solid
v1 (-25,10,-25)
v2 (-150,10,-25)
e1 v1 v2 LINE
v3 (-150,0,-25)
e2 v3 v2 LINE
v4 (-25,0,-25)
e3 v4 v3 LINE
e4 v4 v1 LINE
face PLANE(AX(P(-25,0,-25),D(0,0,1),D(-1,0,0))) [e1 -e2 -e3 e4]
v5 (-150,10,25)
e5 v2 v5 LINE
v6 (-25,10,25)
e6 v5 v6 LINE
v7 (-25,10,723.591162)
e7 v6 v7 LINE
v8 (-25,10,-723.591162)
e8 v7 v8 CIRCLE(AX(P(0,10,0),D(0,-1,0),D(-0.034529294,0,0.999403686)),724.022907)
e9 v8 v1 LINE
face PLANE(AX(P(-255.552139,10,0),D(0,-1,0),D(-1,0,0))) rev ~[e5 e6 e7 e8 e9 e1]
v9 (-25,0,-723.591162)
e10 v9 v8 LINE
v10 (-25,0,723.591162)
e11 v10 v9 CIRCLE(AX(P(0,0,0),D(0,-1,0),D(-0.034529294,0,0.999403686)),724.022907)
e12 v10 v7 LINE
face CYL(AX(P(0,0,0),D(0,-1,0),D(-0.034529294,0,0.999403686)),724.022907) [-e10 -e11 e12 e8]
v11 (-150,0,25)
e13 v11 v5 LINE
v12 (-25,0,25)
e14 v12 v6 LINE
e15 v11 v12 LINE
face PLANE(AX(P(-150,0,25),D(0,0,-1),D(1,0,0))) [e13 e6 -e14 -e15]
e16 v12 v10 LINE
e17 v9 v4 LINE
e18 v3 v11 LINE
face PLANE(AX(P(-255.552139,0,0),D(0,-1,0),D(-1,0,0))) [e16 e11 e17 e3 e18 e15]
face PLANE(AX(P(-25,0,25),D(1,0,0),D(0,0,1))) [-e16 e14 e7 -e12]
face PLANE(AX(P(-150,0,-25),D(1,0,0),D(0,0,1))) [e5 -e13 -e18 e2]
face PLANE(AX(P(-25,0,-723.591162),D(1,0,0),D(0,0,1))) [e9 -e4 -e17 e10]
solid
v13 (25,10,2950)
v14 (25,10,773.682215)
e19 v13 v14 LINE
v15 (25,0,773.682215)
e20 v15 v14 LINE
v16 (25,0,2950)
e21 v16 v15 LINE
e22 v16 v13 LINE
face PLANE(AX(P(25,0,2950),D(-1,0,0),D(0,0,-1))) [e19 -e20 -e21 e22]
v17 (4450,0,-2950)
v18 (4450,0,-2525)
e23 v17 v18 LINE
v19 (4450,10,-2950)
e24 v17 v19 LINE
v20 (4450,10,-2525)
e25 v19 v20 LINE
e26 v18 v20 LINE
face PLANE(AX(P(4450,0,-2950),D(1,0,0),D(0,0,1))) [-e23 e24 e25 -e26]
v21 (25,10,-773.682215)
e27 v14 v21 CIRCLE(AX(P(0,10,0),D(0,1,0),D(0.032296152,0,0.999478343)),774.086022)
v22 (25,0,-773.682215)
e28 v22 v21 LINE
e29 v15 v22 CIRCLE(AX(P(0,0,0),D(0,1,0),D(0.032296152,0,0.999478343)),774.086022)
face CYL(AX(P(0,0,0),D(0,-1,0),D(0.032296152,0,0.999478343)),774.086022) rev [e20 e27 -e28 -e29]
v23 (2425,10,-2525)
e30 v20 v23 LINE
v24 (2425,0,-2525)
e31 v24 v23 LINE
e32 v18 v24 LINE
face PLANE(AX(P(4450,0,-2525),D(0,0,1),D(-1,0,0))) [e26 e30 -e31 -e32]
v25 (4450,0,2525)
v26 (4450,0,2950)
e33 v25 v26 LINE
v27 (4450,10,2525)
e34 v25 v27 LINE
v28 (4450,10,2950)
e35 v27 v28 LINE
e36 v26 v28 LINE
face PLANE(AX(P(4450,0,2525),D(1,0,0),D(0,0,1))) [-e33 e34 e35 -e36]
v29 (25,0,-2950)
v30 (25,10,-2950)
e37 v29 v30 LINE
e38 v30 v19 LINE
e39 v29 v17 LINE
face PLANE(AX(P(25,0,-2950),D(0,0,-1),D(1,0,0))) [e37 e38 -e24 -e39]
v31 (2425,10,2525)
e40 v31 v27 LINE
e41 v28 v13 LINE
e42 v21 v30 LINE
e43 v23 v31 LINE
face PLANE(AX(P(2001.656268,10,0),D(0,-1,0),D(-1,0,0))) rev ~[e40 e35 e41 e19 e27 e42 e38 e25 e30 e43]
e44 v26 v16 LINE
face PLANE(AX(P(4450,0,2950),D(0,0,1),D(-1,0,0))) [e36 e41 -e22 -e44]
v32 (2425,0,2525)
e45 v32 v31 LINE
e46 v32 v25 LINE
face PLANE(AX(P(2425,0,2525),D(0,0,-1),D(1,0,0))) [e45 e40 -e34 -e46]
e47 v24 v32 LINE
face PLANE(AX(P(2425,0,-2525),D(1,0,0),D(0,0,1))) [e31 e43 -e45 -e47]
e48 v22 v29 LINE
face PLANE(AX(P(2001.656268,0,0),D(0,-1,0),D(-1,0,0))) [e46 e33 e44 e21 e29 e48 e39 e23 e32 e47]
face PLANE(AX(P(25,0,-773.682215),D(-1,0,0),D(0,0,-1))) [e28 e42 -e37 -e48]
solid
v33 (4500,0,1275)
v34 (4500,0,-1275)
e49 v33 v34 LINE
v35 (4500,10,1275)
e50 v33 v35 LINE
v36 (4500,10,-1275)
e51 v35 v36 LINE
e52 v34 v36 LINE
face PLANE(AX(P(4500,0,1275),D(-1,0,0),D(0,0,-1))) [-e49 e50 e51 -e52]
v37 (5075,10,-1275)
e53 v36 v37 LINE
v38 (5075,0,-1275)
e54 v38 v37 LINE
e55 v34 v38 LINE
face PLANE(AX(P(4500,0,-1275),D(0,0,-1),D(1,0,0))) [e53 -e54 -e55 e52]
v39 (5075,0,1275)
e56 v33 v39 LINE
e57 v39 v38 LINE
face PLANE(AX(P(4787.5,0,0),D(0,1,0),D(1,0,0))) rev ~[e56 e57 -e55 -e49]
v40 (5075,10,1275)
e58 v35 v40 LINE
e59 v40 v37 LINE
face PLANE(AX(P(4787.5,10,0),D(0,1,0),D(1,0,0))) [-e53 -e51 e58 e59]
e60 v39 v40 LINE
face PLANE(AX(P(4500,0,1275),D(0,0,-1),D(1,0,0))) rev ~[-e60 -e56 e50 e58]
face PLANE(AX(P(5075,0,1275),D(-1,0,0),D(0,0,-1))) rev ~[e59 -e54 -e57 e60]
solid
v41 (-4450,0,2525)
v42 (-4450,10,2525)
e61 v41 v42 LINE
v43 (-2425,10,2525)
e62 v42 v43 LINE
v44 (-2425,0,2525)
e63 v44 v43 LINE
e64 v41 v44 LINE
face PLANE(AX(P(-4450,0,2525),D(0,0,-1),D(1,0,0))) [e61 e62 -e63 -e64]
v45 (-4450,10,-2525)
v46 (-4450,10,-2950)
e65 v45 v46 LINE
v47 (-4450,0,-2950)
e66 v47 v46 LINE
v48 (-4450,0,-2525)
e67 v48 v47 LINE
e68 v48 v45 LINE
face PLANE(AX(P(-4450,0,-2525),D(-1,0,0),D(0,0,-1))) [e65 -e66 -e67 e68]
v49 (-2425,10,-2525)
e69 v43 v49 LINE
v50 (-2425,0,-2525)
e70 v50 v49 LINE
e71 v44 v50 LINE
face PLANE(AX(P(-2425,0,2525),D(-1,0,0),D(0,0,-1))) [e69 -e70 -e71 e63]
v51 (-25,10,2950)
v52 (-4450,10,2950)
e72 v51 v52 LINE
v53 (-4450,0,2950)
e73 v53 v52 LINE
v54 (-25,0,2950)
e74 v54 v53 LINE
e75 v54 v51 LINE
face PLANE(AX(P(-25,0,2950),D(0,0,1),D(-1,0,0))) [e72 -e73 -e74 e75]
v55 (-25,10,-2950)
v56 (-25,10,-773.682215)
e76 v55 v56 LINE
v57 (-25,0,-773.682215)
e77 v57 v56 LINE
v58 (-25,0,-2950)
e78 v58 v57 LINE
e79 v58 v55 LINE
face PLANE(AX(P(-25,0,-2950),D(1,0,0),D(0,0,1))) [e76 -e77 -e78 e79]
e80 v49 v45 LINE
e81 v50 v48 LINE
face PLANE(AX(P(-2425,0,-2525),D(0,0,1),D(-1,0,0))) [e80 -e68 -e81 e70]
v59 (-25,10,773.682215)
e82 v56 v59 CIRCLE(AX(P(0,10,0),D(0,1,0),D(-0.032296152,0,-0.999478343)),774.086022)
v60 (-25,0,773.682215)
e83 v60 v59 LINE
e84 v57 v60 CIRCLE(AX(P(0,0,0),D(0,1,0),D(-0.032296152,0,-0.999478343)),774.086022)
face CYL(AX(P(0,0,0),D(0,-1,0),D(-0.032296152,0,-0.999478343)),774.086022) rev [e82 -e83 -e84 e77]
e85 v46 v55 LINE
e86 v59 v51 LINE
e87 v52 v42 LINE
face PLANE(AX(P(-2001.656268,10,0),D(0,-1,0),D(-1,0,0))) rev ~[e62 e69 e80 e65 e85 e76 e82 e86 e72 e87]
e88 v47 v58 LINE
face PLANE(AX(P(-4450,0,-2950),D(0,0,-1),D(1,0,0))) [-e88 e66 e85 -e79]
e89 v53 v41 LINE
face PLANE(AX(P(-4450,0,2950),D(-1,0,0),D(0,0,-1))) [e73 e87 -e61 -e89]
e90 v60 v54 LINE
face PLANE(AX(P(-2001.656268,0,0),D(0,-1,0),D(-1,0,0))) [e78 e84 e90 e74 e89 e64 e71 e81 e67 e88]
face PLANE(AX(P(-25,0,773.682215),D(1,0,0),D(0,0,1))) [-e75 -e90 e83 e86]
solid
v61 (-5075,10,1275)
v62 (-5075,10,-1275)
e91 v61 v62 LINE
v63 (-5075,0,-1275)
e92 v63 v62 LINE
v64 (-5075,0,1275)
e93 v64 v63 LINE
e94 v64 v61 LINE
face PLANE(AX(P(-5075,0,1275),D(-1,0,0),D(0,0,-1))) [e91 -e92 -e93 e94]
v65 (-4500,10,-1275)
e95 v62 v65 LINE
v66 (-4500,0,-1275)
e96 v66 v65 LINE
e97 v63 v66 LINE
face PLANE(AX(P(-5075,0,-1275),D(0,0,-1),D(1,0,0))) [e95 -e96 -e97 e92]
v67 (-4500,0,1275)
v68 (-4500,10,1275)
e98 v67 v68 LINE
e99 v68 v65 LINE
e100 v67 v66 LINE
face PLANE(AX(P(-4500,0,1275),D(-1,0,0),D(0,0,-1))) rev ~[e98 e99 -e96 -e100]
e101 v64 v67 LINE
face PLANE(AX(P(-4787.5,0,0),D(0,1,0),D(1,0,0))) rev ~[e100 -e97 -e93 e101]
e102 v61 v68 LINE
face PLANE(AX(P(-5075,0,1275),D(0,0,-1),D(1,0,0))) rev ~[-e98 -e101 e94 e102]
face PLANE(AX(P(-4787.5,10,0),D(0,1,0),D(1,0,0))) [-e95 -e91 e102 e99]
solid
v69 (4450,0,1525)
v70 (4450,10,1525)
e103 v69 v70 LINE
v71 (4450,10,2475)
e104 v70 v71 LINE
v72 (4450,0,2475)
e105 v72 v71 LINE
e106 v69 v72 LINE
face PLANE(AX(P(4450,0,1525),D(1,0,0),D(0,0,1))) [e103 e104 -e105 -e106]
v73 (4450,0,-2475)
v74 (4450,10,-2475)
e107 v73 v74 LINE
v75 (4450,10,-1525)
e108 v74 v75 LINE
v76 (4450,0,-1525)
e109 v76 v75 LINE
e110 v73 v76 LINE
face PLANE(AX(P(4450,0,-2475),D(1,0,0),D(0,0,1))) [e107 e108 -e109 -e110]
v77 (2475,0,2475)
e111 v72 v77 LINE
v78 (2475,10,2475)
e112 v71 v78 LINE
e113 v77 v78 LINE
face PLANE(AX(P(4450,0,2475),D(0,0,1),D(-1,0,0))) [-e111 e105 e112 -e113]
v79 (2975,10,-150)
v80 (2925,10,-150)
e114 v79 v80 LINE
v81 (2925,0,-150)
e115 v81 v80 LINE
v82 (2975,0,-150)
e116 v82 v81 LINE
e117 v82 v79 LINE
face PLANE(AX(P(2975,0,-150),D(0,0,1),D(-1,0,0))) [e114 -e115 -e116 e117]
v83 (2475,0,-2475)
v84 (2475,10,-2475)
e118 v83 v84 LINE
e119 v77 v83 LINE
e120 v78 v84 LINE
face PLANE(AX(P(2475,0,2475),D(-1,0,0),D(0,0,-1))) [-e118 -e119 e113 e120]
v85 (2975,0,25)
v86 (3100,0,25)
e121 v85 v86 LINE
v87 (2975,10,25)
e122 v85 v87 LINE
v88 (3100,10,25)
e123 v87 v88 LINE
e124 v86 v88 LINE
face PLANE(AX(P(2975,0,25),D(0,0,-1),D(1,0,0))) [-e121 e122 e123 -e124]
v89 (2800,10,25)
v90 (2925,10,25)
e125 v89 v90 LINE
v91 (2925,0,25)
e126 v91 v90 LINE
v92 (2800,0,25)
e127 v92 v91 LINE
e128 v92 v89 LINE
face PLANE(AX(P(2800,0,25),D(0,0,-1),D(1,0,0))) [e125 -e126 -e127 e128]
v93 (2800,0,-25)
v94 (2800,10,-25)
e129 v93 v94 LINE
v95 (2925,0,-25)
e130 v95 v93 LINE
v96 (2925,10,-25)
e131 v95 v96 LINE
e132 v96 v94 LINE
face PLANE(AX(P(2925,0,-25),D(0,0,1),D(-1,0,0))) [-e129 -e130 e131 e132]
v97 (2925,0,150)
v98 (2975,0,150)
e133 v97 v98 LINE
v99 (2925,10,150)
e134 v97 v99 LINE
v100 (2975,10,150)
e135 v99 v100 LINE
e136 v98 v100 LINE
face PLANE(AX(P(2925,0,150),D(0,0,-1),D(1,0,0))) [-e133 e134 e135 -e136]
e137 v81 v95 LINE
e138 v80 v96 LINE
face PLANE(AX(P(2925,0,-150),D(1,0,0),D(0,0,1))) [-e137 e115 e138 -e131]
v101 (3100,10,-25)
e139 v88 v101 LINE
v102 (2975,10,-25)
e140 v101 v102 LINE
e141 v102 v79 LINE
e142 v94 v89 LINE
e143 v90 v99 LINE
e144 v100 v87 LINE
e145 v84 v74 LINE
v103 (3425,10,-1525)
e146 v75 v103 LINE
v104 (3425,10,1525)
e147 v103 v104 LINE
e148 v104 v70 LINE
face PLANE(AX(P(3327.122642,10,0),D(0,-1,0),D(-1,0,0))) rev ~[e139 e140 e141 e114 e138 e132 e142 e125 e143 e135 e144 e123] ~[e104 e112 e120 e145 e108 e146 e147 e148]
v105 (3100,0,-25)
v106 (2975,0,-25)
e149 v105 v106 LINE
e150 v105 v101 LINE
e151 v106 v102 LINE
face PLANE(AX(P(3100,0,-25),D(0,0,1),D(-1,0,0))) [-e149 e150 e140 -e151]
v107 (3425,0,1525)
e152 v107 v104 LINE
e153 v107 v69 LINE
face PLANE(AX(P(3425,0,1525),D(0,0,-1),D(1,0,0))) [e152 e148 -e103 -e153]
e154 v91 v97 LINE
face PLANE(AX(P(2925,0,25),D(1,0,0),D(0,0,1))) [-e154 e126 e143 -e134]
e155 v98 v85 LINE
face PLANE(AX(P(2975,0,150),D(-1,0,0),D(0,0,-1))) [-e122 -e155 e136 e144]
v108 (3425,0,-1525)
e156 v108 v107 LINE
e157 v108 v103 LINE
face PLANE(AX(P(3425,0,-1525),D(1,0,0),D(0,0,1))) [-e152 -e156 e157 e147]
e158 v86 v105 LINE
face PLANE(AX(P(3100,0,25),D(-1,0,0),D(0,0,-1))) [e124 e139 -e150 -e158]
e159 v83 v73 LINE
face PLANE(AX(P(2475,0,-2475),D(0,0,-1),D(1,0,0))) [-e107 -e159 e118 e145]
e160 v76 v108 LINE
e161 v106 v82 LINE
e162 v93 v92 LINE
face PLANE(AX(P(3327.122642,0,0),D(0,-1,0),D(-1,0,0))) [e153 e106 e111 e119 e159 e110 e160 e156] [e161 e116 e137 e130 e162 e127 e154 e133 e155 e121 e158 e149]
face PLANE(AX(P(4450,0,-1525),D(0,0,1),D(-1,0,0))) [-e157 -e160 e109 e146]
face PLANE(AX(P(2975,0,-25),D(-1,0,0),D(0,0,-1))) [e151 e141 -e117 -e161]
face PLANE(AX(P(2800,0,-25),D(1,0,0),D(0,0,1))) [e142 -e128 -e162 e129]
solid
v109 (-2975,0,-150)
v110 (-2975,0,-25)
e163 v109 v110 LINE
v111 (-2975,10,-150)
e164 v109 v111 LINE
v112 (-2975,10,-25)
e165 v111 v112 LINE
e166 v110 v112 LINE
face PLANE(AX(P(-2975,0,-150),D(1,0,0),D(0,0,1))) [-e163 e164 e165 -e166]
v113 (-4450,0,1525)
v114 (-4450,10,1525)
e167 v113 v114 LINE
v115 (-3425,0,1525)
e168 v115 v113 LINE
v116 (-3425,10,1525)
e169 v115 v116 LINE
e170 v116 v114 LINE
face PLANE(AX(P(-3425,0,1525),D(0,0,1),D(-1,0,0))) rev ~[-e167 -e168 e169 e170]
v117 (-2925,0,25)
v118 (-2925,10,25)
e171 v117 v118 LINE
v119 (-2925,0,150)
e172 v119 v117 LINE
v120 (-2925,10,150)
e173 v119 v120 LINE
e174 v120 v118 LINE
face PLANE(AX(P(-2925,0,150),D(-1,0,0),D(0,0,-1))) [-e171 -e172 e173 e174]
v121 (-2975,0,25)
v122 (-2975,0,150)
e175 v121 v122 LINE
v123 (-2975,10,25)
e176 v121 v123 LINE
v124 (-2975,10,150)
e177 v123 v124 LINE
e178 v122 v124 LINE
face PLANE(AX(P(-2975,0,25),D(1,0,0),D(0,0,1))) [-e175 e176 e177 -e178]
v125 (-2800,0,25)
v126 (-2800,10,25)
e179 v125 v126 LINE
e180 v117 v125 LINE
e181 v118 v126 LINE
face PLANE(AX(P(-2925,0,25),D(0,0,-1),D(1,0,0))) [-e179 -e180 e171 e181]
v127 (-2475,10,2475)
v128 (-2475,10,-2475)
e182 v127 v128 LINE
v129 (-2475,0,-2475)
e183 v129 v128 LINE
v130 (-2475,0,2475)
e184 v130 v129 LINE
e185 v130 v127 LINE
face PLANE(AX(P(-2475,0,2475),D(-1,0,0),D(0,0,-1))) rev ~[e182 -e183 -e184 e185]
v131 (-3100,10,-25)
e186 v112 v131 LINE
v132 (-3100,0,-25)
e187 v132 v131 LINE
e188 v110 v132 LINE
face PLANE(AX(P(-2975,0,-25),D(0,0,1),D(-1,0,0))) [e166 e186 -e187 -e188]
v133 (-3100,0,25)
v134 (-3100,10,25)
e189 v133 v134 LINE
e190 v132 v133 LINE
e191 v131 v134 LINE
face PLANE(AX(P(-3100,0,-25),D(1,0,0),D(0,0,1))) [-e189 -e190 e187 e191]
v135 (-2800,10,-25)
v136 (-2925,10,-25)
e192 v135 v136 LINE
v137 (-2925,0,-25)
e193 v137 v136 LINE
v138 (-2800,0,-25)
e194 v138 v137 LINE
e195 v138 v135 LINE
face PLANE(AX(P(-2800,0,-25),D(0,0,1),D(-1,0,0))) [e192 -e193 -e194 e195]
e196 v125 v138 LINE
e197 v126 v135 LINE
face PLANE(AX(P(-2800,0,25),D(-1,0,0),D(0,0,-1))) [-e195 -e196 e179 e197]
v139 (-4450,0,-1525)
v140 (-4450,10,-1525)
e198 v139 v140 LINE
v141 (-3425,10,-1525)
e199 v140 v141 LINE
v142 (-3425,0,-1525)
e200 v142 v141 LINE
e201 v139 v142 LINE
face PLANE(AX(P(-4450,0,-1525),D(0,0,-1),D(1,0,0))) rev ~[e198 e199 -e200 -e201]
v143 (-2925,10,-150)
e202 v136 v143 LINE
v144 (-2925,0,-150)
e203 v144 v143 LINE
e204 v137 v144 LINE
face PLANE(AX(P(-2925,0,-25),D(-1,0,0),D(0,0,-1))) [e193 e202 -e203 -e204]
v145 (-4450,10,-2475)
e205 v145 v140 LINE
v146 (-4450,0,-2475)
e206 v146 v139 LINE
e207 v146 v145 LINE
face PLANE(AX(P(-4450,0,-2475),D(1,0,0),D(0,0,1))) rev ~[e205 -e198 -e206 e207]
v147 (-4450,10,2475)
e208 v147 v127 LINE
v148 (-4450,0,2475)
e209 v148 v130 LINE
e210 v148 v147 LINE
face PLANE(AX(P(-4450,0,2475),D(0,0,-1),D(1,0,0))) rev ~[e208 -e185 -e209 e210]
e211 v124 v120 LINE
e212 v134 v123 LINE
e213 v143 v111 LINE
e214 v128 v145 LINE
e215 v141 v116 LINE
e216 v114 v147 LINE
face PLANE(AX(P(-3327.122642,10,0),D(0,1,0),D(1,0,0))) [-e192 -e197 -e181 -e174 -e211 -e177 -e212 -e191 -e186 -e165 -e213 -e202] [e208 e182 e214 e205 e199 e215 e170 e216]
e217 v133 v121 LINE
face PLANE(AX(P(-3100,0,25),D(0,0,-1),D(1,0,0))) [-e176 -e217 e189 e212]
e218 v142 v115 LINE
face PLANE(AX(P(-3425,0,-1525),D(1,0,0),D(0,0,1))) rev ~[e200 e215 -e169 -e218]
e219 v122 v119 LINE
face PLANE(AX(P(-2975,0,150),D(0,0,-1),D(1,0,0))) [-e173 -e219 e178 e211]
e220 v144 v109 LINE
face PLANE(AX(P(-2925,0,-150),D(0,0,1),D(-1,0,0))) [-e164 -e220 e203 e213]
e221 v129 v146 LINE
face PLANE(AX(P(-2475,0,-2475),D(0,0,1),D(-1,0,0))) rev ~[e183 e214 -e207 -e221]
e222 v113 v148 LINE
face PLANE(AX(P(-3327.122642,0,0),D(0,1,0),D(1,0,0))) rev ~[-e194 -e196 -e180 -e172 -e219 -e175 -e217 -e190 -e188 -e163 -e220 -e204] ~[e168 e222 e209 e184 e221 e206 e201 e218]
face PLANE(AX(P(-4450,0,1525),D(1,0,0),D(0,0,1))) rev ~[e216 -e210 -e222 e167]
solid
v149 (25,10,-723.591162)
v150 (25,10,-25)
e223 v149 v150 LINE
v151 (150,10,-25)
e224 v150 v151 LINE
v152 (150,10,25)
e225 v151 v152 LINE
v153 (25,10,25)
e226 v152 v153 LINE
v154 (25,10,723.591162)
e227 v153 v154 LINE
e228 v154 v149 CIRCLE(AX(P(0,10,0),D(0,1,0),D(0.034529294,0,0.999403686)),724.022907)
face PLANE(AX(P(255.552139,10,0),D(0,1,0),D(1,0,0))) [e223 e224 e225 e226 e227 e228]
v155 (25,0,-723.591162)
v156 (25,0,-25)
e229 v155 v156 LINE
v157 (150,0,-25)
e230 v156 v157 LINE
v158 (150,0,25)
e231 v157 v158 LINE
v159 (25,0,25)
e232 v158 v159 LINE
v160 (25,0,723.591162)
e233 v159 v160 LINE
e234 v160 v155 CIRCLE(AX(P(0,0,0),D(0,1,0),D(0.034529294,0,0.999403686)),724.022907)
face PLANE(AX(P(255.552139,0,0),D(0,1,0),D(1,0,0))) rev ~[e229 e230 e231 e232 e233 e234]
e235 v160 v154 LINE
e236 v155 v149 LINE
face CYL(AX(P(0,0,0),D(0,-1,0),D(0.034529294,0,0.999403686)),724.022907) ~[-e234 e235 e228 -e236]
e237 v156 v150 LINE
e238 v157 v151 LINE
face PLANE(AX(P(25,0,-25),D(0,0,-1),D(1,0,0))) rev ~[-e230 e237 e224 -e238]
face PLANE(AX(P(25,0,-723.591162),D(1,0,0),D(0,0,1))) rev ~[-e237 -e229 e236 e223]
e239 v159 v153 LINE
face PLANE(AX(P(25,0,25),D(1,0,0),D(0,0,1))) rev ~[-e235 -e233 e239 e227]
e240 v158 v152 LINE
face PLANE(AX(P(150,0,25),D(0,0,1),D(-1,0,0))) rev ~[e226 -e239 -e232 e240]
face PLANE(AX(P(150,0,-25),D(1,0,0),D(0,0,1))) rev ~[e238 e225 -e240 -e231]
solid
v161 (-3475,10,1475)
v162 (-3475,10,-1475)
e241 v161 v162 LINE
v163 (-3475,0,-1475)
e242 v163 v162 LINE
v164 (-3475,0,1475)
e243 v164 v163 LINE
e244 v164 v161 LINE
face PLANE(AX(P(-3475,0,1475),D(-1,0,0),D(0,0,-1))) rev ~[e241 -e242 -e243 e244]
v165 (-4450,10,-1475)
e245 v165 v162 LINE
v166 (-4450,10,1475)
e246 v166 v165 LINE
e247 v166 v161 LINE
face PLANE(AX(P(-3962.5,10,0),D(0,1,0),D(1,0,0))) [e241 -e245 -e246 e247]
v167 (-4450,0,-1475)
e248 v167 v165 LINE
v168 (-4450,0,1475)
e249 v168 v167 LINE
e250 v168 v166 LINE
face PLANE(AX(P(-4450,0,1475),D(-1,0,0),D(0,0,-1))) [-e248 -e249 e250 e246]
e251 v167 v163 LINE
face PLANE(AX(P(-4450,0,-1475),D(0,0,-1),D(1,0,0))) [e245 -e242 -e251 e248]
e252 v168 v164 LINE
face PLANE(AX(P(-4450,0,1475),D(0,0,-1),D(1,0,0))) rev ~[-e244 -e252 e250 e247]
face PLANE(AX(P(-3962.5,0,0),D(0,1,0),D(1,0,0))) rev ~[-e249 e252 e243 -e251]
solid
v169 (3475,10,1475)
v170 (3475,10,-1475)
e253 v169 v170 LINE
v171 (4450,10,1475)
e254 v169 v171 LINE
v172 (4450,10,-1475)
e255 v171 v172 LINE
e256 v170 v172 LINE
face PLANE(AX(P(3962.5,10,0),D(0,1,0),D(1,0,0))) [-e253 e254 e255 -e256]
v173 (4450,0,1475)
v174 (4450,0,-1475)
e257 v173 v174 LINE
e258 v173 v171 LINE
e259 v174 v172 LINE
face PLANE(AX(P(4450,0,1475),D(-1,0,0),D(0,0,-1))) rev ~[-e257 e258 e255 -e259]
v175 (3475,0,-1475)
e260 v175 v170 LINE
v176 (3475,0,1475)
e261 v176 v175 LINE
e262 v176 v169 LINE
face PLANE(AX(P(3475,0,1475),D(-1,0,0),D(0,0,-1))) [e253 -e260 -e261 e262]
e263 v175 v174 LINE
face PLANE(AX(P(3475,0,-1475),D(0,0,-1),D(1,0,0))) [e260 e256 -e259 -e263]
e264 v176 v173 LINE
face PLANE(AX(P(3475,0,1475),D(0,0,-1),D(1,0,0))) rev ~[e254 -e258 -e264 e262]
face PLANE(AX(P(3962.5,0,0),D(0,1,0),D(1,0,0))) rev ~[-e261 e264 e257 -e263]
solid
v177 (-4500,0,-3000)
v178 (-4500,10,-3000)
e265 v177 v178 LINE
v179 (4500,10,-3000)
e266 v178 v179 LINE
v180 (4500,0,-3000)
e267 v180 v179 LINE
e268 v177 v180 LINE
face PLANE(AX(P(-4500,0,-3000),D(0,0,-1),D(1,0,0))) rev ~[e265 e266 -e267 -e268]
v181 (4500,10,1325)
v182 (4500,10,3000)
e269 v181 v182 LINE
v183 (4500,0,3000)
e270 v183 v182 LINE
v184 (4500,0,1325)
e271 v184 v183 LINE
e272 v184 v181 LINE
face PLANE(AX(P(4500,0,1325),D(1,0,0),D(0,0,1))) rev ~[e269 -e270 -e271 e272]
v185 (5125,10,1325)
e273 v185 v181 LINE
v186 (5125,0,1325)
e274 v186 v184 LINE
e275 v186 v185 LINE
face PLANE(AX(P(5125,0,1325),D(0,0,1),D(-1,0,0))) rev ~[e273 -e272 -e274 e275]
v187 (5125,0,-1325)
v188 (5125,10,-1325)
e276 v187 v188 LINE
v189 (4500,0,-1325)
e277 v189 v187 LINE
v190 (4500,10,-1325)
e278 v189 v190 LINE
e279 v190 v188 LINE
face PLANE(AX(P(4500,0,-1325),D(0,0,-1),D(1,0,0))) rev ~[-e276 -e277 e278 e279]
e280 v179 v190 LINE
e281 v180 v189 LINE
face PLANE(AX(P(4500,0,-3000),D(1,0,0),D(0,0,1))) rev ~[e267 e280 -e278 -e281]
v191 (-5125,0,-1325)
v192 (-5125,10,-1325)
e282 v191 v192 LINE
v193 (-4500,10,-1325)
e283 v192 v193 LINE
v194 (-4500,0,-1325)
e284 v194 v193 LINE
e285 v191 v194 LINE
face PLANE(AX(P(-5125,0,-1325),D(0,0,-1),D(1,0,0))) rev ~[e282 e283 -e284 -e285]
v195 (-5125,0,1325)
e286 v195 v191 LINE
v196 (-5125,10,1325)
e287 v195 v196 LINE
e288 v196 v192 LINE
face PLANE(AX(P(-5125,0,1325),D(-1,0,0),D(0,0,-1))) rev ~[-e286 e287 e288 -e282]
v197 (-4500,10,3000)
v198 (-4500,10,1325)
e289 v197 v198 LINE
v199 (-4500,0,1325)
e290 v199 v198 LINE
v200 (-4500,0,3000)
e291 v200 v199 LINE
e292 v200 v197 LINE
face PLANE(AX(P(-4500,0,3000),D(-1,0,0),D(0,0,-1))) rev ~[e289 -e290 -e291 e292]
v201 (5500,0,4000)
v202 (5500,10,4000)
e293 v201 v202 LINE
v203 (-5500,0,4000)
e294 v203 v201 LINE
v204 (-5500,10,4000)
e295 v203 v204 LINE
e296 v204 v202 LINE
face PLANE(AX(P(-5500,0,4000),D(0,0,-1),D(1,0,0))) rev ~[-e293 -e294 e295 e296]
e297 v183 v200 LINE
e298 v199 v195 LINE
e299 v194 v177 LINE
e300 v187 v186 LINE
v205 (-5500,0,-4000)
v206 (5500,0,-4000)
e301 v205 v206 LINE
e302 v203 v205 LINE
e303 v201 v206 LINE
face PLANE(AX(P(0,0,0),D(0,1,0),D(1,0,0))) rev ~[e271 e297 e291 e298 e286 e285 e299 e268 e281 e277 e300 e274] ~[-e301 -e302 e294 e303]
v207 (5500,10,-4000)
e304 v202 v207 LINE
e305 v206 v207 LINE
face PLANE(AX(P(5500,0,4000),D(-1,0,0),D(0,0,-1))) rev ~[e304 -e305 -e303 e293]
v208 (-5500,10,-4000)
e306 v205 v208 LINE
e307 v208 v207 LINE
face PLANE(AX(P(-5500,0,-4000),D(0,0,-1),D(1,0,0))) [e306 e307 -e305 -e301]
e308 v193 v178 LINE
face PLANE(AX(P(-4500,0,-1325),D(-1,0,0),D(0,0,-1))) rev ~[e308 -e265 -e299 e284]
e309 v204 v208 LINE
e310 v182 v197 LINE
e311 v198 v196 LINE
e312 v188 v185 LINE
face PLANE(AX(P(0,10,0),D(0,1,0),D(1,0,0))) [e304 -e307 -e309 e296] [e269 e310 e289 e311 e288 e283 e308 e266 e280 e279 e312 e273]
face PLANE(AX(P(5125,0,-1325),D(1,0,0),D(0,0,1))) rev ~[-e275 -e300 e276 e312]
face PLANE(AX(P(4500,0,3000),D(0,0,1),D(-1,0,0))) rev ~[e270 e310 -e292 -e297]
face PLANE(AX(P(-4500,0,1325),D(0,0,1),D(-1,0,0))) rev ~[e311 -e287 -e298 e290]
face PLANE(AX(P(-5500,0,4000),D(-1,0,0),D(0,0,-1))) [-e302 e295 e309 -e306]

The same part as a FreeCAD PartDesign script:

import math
import FreeCAD as App
import Part
import Sketcher
from FreeCAD import Vector

doc = App.newDocument("Part")
body = doc.addObject("PartDesign::Body", "Body")

# Sketch on XZ plane
sketch1 = doc.addObject("Sketcher::SketchObject", "Sketch")
body.addObject(sketch1)
sketch1.AttachmentSupport = (doc.XZ_Plane, [""])
sketch1.MapMode = "FlatFace"
sketch1.addGeometry([
    Part.LineSegment(Vector(25, 25, 0), Vector(25, 724, 0)),  # 0
    Part.ArcOfCircle(Part.Circle(Vector(0, 0, 0), Vector(0, 0, 1), 724), math.radians(-88), math.radians(88)),  # 1
    Part.LineSegment(Vector(25, -724, 0), Vector(25, -25, 0)),  # 2
    Part.LineSegment(Vector(25, -25, 0), Vector(150, -25, 0)),  # 3
    Part.LineSegment(Vector(150, -25, 0), Vector(150, 25, 0)),  # 4
    Part.LineSegment(Vector(150, 25, 0), Vector(25, 25, 0)),  # 5
], False)
sketch1.addConstraint([
    Sketcher.Constraint("Coincident", 0, 2, 1, 2),
    Sketcher.Constraint("Coincident", 1, 1, 2, 1),
    Sketcher.Constraint("Coincident", 2, 2, 3, 1),
    Sketcher.Constraint("Coincident", 3, 2, 4, 1),
    Sketcher.Constraint("Coincident", 4, 2, 5, 1),
    Sketcher.Constraint("Coincident", 5, 2, 0, 1),
    Sketcher.Constraint("Vertical", 0),
    Sketcher.Constraint("Vertical", 2),
    Sketcher.Constraint("Horizontal", 3),
    Sketcher.Constraint("Vertical", 4),
    Sketcher.Constraint("Horizontal", 5),
    Sketcher.Constraint("Coincident", 1, 3, -1, 1),
    Sketcher.Constraint("Symmetric", 2, 2, 5, 2, -1),
    Sketcher.Constraint("DistanceX", 3, 1, 3, 2, 125.0),
    Sketcher.Constraint("DistanceY", 4, 1, 4, 2, 50.0),
    Sketcher.Constraint("DistanceX", -1, 1, 0, 2, 25.0),
    Sketcher.Constraint("Radius", 1, 724.022907),
])
pad1 = doc.addObject("PartDesign::Pad", "Pad")
body.addObject(pad1)
pad1.Profile = sketch1
pad1.Length = 10
pad1.Reversed = True
body2 = doc.addObject("PartDesign::Body", "Body001")

# Sketch on XZ plane
sketch2 = doc.addObject("Sketcher::SketchObject", "Sketch001")
body2.addObject(sketch2)
sketch2.AttachmentSupport = (doc.getObject("XZ_Plane001"), [""])
sketch2.MapMode = "FlatFace"
sketch2.addGeometry([
    Part.LineSegment(Vector(-25, -25, 0), Vector(-25, -724, 0)),  # 0
    Part.ArcOfCircle(Part.Circle(Vector(0, 0, 0), Vector(0, 0, 1), 724), math.radians(92), math.radians(268)),  # 1
    Part.LineSegment(Vector(-25, 724, 0), Vector(-25, 25, 0)),  # 2
    Part.LineSegment(Vector(-25, 25, 0), Vector(-150, 25, 0)),  # 3
    Part.LineSegment(Vector(-150, 25, 0), Vector(-150, -25, 0)),  # 4
    Part.LineSegment(Vector(-150, -25, 0), Vector(-25, -25, 0)),  # 5
], False)
sketch2.addConstraint([
    Sketcher.Constraint("Coincident", 0, 2, 1, 2),
    Sketcher.Constraint("Coincident", 1, 1, 2, 1),
    Sketcher.Constraint("Coincident", 2, 2, 3, 1),
    Sketcher.Constraint("Coincident", 3, 2, 4, 1),
    Sketcher.Constraint("Coincident", 4, 2, 5, 1),
    Sketcher.Constraint("Coincident", 5, 2, 0, 1),
    Sketcher.Constraint("Vertical", 0),
    Sketcher.Constraint("Vertical", 2),
    Sketcher.Constraint("Horizontal", 3),
    Sketcher.Constraint("Vertical", 4),
    Sketcher.Constraint("Horizontal", 5),
    Sketcher.Constraint("Coincident", 1, 3, -1, 1),
    Sketcher.Constraint("Symmetric", 2, 2, 5, 2, -1),
    Sketcher.Constraint("DistanceX", 3, 2, 3, 1, 125.0),
    Sketcher.Constraint("DistanceY", 4, 2, 4, 1, 50.0),
    Sketcher.Constraint("DistanceX", 0, 2, -1, 1, 25.0),
    Sketcher.Constraint("Radius", 1, 724.022907),
])
pad2 = doc.addObject("PartDesign::Pad", "Pad001")
body2.addObject(pad2)
pad2.Profile = sketch2
pad2.Length = 10
pad2.Reversed = True
body3 = doc.addObject("PartDesign::Body", "Body002")

# Sketch on XZ plane
sketch3 = doc.addObject("Sketcher::SketchObject", "Sketch002")
body3.addObject(sketch3)
sketch3.AttachmentSupport = (doc.getObject("XZ_Plane002"), [""])
sketch3.MapMode = "FlatFace"
sketch3.addGeometry([
    Part.ArcOfCircle(Part.Circle(Vector(0, 0, 0), Vector(0, 0, 1), 774), math.radians(92), math.radians(268)),  # 0
    Part.LineSegment(Vector(-25, -774, 0), Vector(-25, -2950, 0)),  # 1
    Part.LineSegment(Vector(-25, -2950, 0), Vector(-4450, -2950, 0)),  # 2
    Part.LineSegment(Vector(-4450, -2950, 0), Vector(-4450, -2525, 0)),  # 3
    Part.LineSegment(Vector(-4450, -2525, 0), Vector(-2425, -2525, 0)),  # 4
    Part.LineSegment(Vector(-2425, -2525, 0), Vector(-2425, 2525, 0)),  # 5
    Part.LineSegment(Vector(-2425, 2525, 0), Vector(-4450, 2525, 0)),  # 6
    Part.LineSegment(Vector(-4450, 2525, 0), Vector(-4450, 2950, 0)),  # 7
    Part.LineSegment(Vector(-4450, 2950, 0), Vector(-25, 2950, 0)),  # 8
    Part.LineSegment(Vector(-25, 2950, 0), Vector(-25, 774, 0)),  # 9
], False)
sketch3.addConstraint([
    Sketcher.Constraint("Coincident", 0, 2, 1, 1),
    Sketcher.Constraint("Coincident", 1, 2, 2, 1),
    Sketcher.Constraint("Coincident", 2, 2, 3, 1),
    Sketcher.Constraint("Coincident", 3, 2, 4, 1),
    Sketcher.Constraint("Coincident", 4, 2, 5, 1),
    Sketcher.Constraint("Coincident", 5, 2, 6, 1),
    Sketcher.Constraint("Coincident", 6, 2, 7, 1),
    Sketcher.Constraint("Coincident", 7, 2, 8, 1),
    Sketcher.Constraint("Coincident", 8, 2, 9, 1),
    Sketcher.Constraint("Coincident", 9, 2, 0, 1),
    Sketcher.Constraint("Vertical", 1),
    Sketcher.Constraint("Horizontal", 2),
    Sketcher.Constraint("Vertical", 3),
    Sketcher.Constraint("Horizontal", 4),
    Sketcher.Constraint("Vertical", 5),
    Sketcher.Constraint("Horizontal", 6),
    Sketcher.Constraint("Vertical", 7),
    Sketcher.Constraint("Horizontal", 8),
    Sketcher.Constraint("Vertical", 9),
    Sketcher.Constraint("Coincident", 0, 3, -1, 1),
    Sketcher.Constraint("Symmetric", 3, 2, 6, 2, -1),
    Sketcher.Constraint("Symmetric", 1, 2, 8, 2, -1),
    Sketcher.Constraint("DistanceX", 2, 2, 2, 1, 4425.0),
    Sketcher.Constraint("DistanceX", 4, 1, 4, 2, 2025.0),
    Sketcher.Constraint("DistanceY", 3, 1, 3, 2, 425.0),
    Sketcher.Constraint("DistanceY", 5, 1, 5, 2, 5050.0),
    Sketcher.Constraint("DistanceX", 1, 2, -1, 1, 25.0),
    Sketcher.Constraint("Radius", 0, 774.086022),
])
pad3 = doc.addObject("PartDesign::Pad", "Pad002")
body3.addObject(pad3)
pad3.Profile = sketch3
pad3.Length = 10
pad3.Reversed = True
body4 = doc.addObject("PartDesign::Body", "Body003")

# Sketch on XZ plane
sketch4 = doc.addObject("Sketcher::SketchObject", "Sketch003")
body4.addObject(sketch4)
sketch4.AttachmentSupport = (doc.getObject("XZ_Plane003"), [""])
sketch4.MapMode = "FlatFace"
sketch4.addGeometry([
    Part.ArcOfCircle(Part.Circle(Vector(0, 0, 0), Vector(0, 0, 1), 774), math.radians(-88), math.radians(88)),  # 0
    Part.LineSegment(Vector(25, 774, 0), Vector(25, 2950, 0)),  # 1
    Part.LineSegment(Vector(25, 2950, 0), Vector(4450, 2950, 0)),  # 2
    Part.LineSegment(Vector(4450, 2950, 0), Vector(4450, 2525, 0)),  # 3
    Part.LineSegment(Vector(4450, 2525, 0), Vector(2425, 2525, 0)),  # 4
    Part.LineSegment(Vector(2425, 2525, 0), Vector(2425, -2525, 0)),  # 5
    Part.LineSegment(Vector(2425, -2525, 0), Vector(4450, -2525, 0)),  # 6
    Part.LineSegment(Vector(4450, -2525, 0), Vector(4450, -2950, 0)),  # 7
    Part.LineSegment(Vector(4450, -2950, 0), Vector(25, -2950, 0)),  # 8
    Part.LineSegment(Vector(25, -2950, 0), Vector(25, -774, 0)),  # 9
], False)
sketch4.addConstraint([
    Sketcher.Constraint("Coincident", 0, 2, 1, 1),
    Sketcher.Constraint("Coincident", 1, 2, 2, 1),
    Sketcher.Constraint("Coincident", 2, 2, 3, 1),
    Sketcher.Constraint("Coincident", 3, 2, 4, 1),
    Sketcher.Constraint("Coincident", 4, 2, 5, 1),
    Sketcher.Constraint("Coincident", 5, 2, 6, 1),
    Sketcher.Constraint("Coincident", 6, 2, 7, 1),
    Sketcher.Constraint("Coincident", 7, 2, 8, 1),
    Sketcher.Constraint("Coincident", 8, 2, 9, 1),
    Sketcher.Constraint("Coincident", 9, 2, 0, 1),
    Sketcher.Constraint("Vertical", 1),
    Sketcher.Constraint("Horizontal", 2),
    Sketcher.Constraint("Vertical", 3),
    Sketcher.Constraint("Horizontal", 4),
    Sketcher.Constraint("Vertical", 5),
    Sketcher.Constraint("Horizontal", 6),
    Sketcher.Constraint("Vertical", 7),
    Sketcher.Constraint("Horizontal", 8),
    Sketcher.Constraint("Vertical", 9),
    Sketcher.Constraint("Coincident", 0, 3, -1, 1),
    Sketcher.Constraint("Symmetric", 3, 2, 6, 2, -1),
    Sketcher.Constraint("Symmetric", 1, 2, 8, 2, -1),
    Sketcher.Constraint("DistanceX", 2, 1, 2, 2, 4425.0),
    Sketcher.Constraint("DistanceX", 4, 2, 4, 1, 2025.0),
    Sketcher.Constraint("DistanceY", 3, 2, 3, 1, 425.0),
    Sketcher.Constraint("DistanceY", 5, 2, 5, 1, 5050.0),
    Sketcher.Constraint("DistanceX", -1, 1, 1, 2, 25.0),
    Sketcher.Constraint("Radius", 0, 774.086022),
])
pad4 = doc.addObject("PartDesign::Pad", "Pad003")
body4.addObject(pad4)
pad4.Profile = sketch4
pad4.Length = 10
pad4.Reversed = True
body5 = doc.addObject("PartDesign::Body", "Body004")

# Sketch on XZ plane
sketch5 = doc.addObject("Sketcher::SketchObject", "Sketch004")
body5.addObject(sketch5)
sketch5.AttachmentSupport = (doc.getObject("XZ_Plane004"), [""])
sketch5.MapMode = "FlatFace"
sketch5.addGeometry([
    Part.LineSegment(Vector(4450, 2475, 0), Vector(4450, 1525, 0)),  # 0
    Part.LineSegment(Vector(4450, 1525, 0), Vector(3425, 1525, 0)),  # 1
    Part.LineSegment(Vector(3425, 1525, 0), Vector(3425, -1525, 0)),  # 2
    Part.LineSegment(Vector(3425, -1525, 0), Vector(4450, -1525, 0)),  # 3
    Part.LineSegment(Vector(4450, -1525, 0), Vector(4450, -2475, 0)),  # 4
    Part.LineSegment(Vector(4450, -2475, 0), Vector(2475, -2475, 0)),  # 5
    Part.LineSegment(Vector(2475, -2475, 0), Vector(2475, 2475, 0)),  # 6
    Part.LineSegment(Vector(2475, 2475, 0), Vector(4450, 2475, 0)),  # 7
    Part.LineSegment(Vector(2975, -150, 0), Vector(2975, -25, 0)),  # 8
    Part.LineSegment(Vector(2975, -25, 0), Vector(3100, -25, 0)),  # 9
    Part.LineSegment(Vector(3100, -25, 0), Vector(3100, 25, 0)),  # 10
    Part.LineSegment(Vector(3100, 25, 0), Vector(2975, 25, 0)),  # 11
    Part.LineSegment(Vector(2975, 25, 0), Vector(2975, 150, 0)),  # 12
    Part.LineSegment(Vector(2975, 150, 0), Vector(2925, 150, 0)),  # 13
    Part.LineSegment(Vector(2925, 150, 0), Vector(2925, 25, 0)),  # 14
    Part.LineSegment(Vector(2925, 25, 0), Vector(2800, 25, 0)),  # 15
    Part.LineSegment(Vector(2800, 25, 0), Vector(2800, -25, 0)),  # 16
    Part.LineSegment(Vector(2800, -25, 0), Vector(2925, -25, 0)),  # 17
    Part.LineSegment(Vector(2925, -25, 0), Vector(2925, -150, 0)),  # 18
    Part.LineSegment(Vector(2925, -150, 0), Vector(2975, -150, 0)),  # 19
], False)
sketch5.addConstraint([
    Sketcher.Constraint("Coincident", 0, 2, 1, 1),
    Sketcher.Constraint("Coincident", 1, 2, 2, 1),
    Sketcher.Constraint("Coincident", 2, 2, 3, 1),
    Sketcher.Constraint("Coincident", 3, 2, 4, 1),
    Sketcher.Constraint("Coincident", 4, 2, 5, 1),
    Sketcher.Constraint("Coincident", 5, 2, 6, 1),
    Sketcher.Constraint("Coincident", 6, 2, 7, 1),
    Sketcher.Constraint("Coincident", 7, 2, 0, 1),
    Sketcher.Constraint("Coincident", 8, 2, 9, 1),
    Sketcher.Constraint("Coincident", 9, 2, 10, 1),
    Sketcher.Constraint("Coincident", 10, 2, 11, 1),
    Sketcher.Constraint("Coincident", 11, 2, 12, 1),
    Sketcher.Constraint("Coincident", 12, 2, 13, 1),
    Sketcher.Constraint("Coincident", 13, 2, 14, 1),
    Sketcher.Constraint("Coincident", 14, 2, 15, 1),
    Sketcher.Constraint("Coincident", 15, 2, 16, 1),
    Sketcher.Constraint("Coincident", 16, 2, 17, 1),
    Sketcher.Constraint("Coincident", 17, 2, 18, 1),
    Sketcher.Constraint("Coincident", 18, 2, 19, 1),
    Sketcher.Constraint("Coincident", 19, 2, 8, 1),
    Sketcher.Constraint("Vertical", 0),
    Sketcher.Constraint("Horizontal", 1),
    Sketcher.Constraint("Vertical", 2),
    Sketcher.Constraint("Horizontal", 3),
    Sketcher.Constraint("Vertical", 4),
    Sketcher.Constraint("Horizontal", 5),
    Sketcher.Constraint("Vertical", 6),
    Sketcher.Constraint("Horizontal", 7),
    Sketcher.Constraint("Vertical", 8),
    Sketcher.Constraint("Horizontal", 9),
    Sketcher.Constraint("Vertical", 10),
    Sketcher.Constraint("Horizontal", 11),
    Sketcher.Constraint("Vertical", 12),
    Sketcher.Constraint("Horizontal", 13),
    Sketcher.Constraint("Vertical", 14),
    Sketcher.Constraint("Horizontal", 15),
    Sketcher.Constraint("Vertical", 16),
    Sketcher.Constraint("Horizontal", 17),
    Sketcher.Constraint("Vertical", 18),
    Sketcher.Constraint("Horizontal", 19),
    Sketcher.Constraint("Symmetric", 0, 2, 3, 2, -1),
    Sketcher.Constraint("Symmetric", 8, 2, 11, 2, -1),
    Sketcher.Constraint("Symmetric", 14, 2, 17, 2, -1),
    Sketcher.Constraint("Horizontal", 11, 2, 14, 2),
    Sketcher.Constraint("Equal", 11, 15),
    Sketcher.Constraint("Equal", 0, 4),
    Sketcher.Constraint("Equal", 17, 8),
    Sketcher.Constraint("Equal", 19, 10),
    Sketcher.Constraint("Equal", 8, 12),
    Sketcher.Constraint("DistanceX", 1, 2, 1, 1, 1025.0),
    Sketcher.Constraint("DistanceX", 5, 2, 5, 1, 1975.0),
    Sketcher.Constraint("DistanceX", 9, 1, 9, 2, 125.0),
    Sketcher.Constraint("DistanceX", 13, 2, 13, 1, 50.0),
    Sketcher.Constraint("DistanceY", 0, 2, 0, 1, 950.0),
    Sketcher.Constraint("DistanceY", 2, 2, 2, 1, 3050.0),
    Sketcher.Constraint("DistanceX", -1, 1, 0, 2, 4450.0),
    Sketcher.Constraint("DistanceX", -1, 1, 8, 2, 2975.0),
])
pad5 = doc.addObject("PartDesign::Pad", "Pad004")
body5.addObject(pad5)
pad5.Profile = sketch5
pad5.Length = 10
pad5.Reversed = True
body6 = doc.addObject("PartDesign::Body", "Body005")

# Sketch on XZ plane
sketch6 = doc.addObject("Sketcher::SketchObject", "Sketch005")
body6.addObject(sketch6)
sketch6.AttachmentSupport = (doc.getObject("XZ_Plane005"), [""])
sketch6.MapMode = "FlatFace"
sketch6.addGeometry([
    Part.LineSegment(Vector(3475, -1475, 0), Vector(3475, 1475, 0)),
    Part.LineSegment(Vector(3475, 1475, 0), Vector(4450, 1475, 0)),
    Part.LineSegment(Vector(4450, 1475, 0), Vector(4450, -1475, 0)),
    Part.LineSegment(Vector(4450, -1475, 0), Vector(3475, -1475, 0)),
], False)
sketch6.addConstraint([
    Sketcher.Constraint("Coincident", 0, 2, 1, 1),
    Sketcher.Constraint("Coincident", 1, 2, 2, 1),
    Sketcher.Constraint("Coincident", 2, 2, 3, 1),
    Sketcher.Constraint("Coincident", 3, 2, 0, 1),
    Sketcher.Constraint("Vertical", 0),
    Sketcher.Constraint("Horizontal", 1),
    Sketcher.Constraint("Vertical", 2),
    Sketcher.Constraint("Horizontal", 3),
    Sketcher.Constraint("DistanceX", 1, 1, 1, 2, 975.0),
    Sketcher.Constraint("DistanceY", 0, 1, 0, 2, 2950.0),
    Sketcher.Constraint("DistanceX", -1, 1, 0, 2, 3475.0),
    Sketcher.Constraint("DistanceY", -1, 1, 0, 2, 1475.0),
])
pad6 = doc.addObject("PartDesign::Pad", "Pad005")
body6.addObject(pad6)
pad6.Profile = sketch6
pad6.Length = 10
pad6.Reversed = True
body7 = doc.addObject("PartDesign::Body", "Body006")

# Sketch on XZ plane
sketch7 = doc.addObject("Sketcher::SketchObject", "Sketch006")
body7.addObject(sketch7)
sketch7.AttachmentSupport = (doc.getObject("XZ_Plane006"), [""])
sketch7.MapMode = "FlatFace"
sketch7.addGeometry([
    Part.LineSegment(Vector(4500, -1275, 0), Vector(4500, 1275, 0)),
    Part.LineSegment(Vector(4500, 1275, 0), Vector(5075, 1275, 0)),
    Part.LineSegment(Vector(5075, 1275, 0), Vector(5075, -1275, 0)),
    Part.LineSegment(Vector(5075, -1275, 0), Vector(4500, -1275, 0)),
], False)
sketch7.addConstraint([
    Sketcher.Constraint("Coincident", 0, 2, 1, 1),
    Sketcher.Constraint("Coincident", 1, 2, 2, 1),
    Sketcher.Constraint("Coincident", 2, 2, 3, 1),
    Sketcher.Constraint("Coincident", 3, 2, 0, 1),
    Sketcher.Constraint("Vertical", 0),
    Sketcher.Constraint("Horizontal", 1),
    Sketcher.Constraint("Vertical", 2),
    Sketcher.Constraint("Horizontal", 3),
    Sketcher.Constraint("DistanceX", 1, 1, 1, 2, 575.0),
    Sketcher.Constraint("DistanceY", 0, 1, 0, 2, 2550.0),
    Sketcher.Constraint("DistanceX", -1, 1, 0, 2, 4500.0),
    Sketcher.Constraint("DistanceY", -1, 1, 0, 2, 1275.0),
])
pad7 = doc.addObject("PartDesign::Pad", "Pad006")
body7.addObject(pad7)
pad7.Profile = sketch7
pad7.Length = 10
pad7.Reversed = True
body8 = doc.addObject("PartDesign::Body", "Body007")

# Sketch on XZ plane
sketch8 = doc.addObject("Sketcher::SketchObject", "Sketch007")
body8.addObject(sketch8)
sketch8.AttachmentSupport = (doc.getObject("XZ_Plane007"), [""])
sketch8.MapMode = "FlatFace"
sketch8.addGeometry([
    Part.LineSegment(Vector(-3425, 1525, 0), Vector(-4450, 1525, 0)),  # 0
    Part.LineSegment(Vector(-4450, 1525, 0), Vector(-4450, 2475, 0)),  # 1
    Part.LineSegment(Vector(-4450, 2475, 0), Vector(-2475, 2475, 0)),  # 2
    Part.LineSegment(Vector(-2475, 2475, 0), Vector(-2475, -2475, 0)),  # 3
    Part.LineSegment(Vector(-2475, -2475, 0), Vector(-4450, -2475, 0)),  # 4
    Part.LineSegment(Vector(-4450, -2475, 0), Vector(-4450, -1525, 0)),  # 5
    Part.LineSegment(Vector(-4450, -1525, 0), Vector(-3425, -1525, 0)),  # 6
    Part.LineSegment(Vector(-3425, -1525, 0), Vector(-3425, 1525, 0)),  # 7
    Part.LineSegment(Vector(-2800, 25, 0), Vector(-2925, 25, 0)),  # 8
    Part.LineSegment(Vector(-2925, 25, 0), Vector(-2925, 150, 0)),  # 9
    Part.LineSegment(Vector(-2925, 150, 0), Vector(-2975, 150, 0)),  # 10
    Part.LineSegment(Vector(-2975, 150, 0), Vector(-2975, 25, 0)),  # 11
    Part.LineSegment(Vector(-2975, 25, 0), Vector(-3100, 25, 0)),  # 12
    Part.LineSegment(Vector(-3100, 25, 0), Vector(-3100, -25, 0)),  # 13
    Part.LineSegment(Vector(-3100, -25, 0), Vector(-2975, -25, 0)),  # 14
    Part.LineSegment(Vector(-2975, -25, 0), Vector(-2975, -150, 0)),  # 15
    Part.LineSegment(Vector(-2975, -150, 0), Vector(-2925, -150, 0)),  # 16
    Part.LineSegment(Vector(-2925, -150, 0), Vector(-2925, -25, 0)),  # 17
    Part.LineSegment(Vector(-2925, -25, 0), Vector(-2800, -25, 0)),  # 18
    Part.LineSegment(Vector(-2800, -25, 0), Vector(-2800, 25, 0)),  # 19
], False)
sketch8.addConstraint([
    Sketcher.Constraint("Coincident", 0, 2, 1, 1),
    Sketcher.Constraint("Coincident", 1, 2, 2, 1),
    Sketcher.Constraint("Coincident", 2, 2, 3, 1),
    Sketcher.Constraint("Coincident", 3, 2, 4, 1),
    Sketcher.Constraint("Coincident", 4, 2, 5, 1),
    Sketcher.Constraint("Coincident", 5, 2, 6, 1),
    Sketcher.Constraint("Coincident", 6, 2, 7, 1),
    Sketcher.Constraint("Coincident", 7, 2, 0, 1),
    Sketcher.Constraint("Coincident", 8, 2, 9, 1),
    Sketcher.Constraint("Coincident", 9, 2, 10, 1),
    Sketcher.Constraint("Coincident", 10, 2, 11, 1),
    Sketcher.Constraint("Coincident", 11, 2, 12, 1),
    Sketcher.Constraint("Coincident", 12, 2, 13, 1),
    Sketcher.Constraint("Coincident", 13, 2, 14, 1),
    Sketcher.Constraint("Coincident", 14, 2, 15, 1),
    Sketcher.Constraint("Coincident", 15, 2, 16, 1),
    Sketcher.Constraint("Coincident", 16, 2, 17, 1),
    Sketcher.Constraint("Coincident", 17, 2, 18, 1),
    Sketcher.Constraint("Coincident", 18, 2, 19, 1),
    Sketcher.Constraint("Coincident", 19, 2, 8, 1),
    Sketcher.Constraint("Horizontal", 0),
    Sketcher.Constraint("Vertical", 1),
    Sketcher.Constraint("Horizontal", 2),
    Sketcher.Constraint("Vertical", 3),
    Sketcher.Constraint("Horizontal", 4),
    Sketcher.Constraint("Vertical", 5),
    Sketcher.Constraint("Horizontal", 6),
    Sketcher.Constraint("Vertical", 7),
    Sketcher.Constraint("Horizontal", 8),
    Sketcher.Constraint("Vertical", 9),
    Sketcher.Constraint("Horizontal", 10),
    Sketcher.Constraint("Vertical", 11),
    Sketcher.Constraint("Horizontal", 12),
    Sketcher.Constraint("Vertical", 13),
    Sketcher.Constraint("Horizontal", 14),
    Sketcher.Constraint("Vertical", 15),
    Sketcher.Constraint("Horizontal", 16),
    Sketcher.Constraint("Vertical", 17),
    Sketcher.Constraint("Horizontal", 18),
    Sketcher.Constraint("Vertical", 19),
    Sketcher.Constraint("Symmetric", 1, 2, 4, 2, -1),
    Sketcher.Constraint("Symmetric", 11, 2, 14, 2, -1),
    Sketcher.Constraint("Symmetric", 9, 2, 16, 2, -1),
    Sketcher.Constraint("Horizontal", 8, 2, 11, 2),
    Sketcher.Constraint("Horizontal", 14, 2, 17, 2),
    Sketcher.Constraint("Equal", 8, 12),
    Sketcher.Constraint("Equal", 1, 5),
    Sketcher.Constraint("Equal", 18, 9),
    Sketcher.Constraint("Equal", 16, 13),
    Sketcher.Constraint("DistanceX", 0, 2, 0, 1, 1025.0),
    Sketcher.Constraint("DistanceX", 2, 1, 2, 2, 1975.0),
    Sketcher.Constraint("DistanceX", 8, 2, 8, 1, 125.0),
    Sketcher.Constraint("DistanceX", 10, 2, 10, 1, 50.0),
    Sketcher.Constraint("DistanceY", 1, 1, 1, 2, 950.0),
    Sketcher.Constraint("DistanceY", 3, 2, 3, 1, 4950.0),
    Sketcher.Constraint("DistanceX", 0, 2, -1, 1, 4450.0),
    Sketcher.Constraint("DistanceX", 8, 2, -1, 1, 2925.0),
])
pad8 = doc.addObject("PartDesign::Pad", "Pad007")
body8.addObject(pad8)
pad8.Profile = sketch8
pad8.Length = 10
pad8.Reversed = True
body9 = doc.addObject("PartDesign::Body", "Body008")

# Sketch on XZ plane
sketch9 = doc.addObject("Sketcher::SketchObject", "Sketch008")
body9.addObject(sketch9)
sketch9.AttachmentSupport = (doc.getObject("XZ_Plane008"), [""])
sketch9.MapMode = "FlatFace"
sketch9.addGeometry([
    Part.LineSegment(Vector(-4450, -1475, 0), Vector(-4450, 1475, 0)),
    Part.LineSegment(Vector(-4450, 1475, 0), Vector(-3475, 1475, 0)),
    Part.LineSegment(Vector(-3475, 1475, 0), Vector(-3475, -1475, 0)),
    Part.LineSegment(Vector(-3475, -1475, 0), Vector(-4450, -1475, 0)),
], False)
sketch9.addConstraint([
    Sketcher.Constraint("Coincident", 0, 2, 1, 1),
    Sketcher.Constraint("Coincident", 1, 2, 2, 1),
    Sketcher.Constraint("Coincident", 2, 2, 3, 1),
    Sketcher.Constraint("Coincident", 3, 2, 0, 1),
    Sketcher.Constraint("Vertical", 0),
    Sketcher.Constraint("Horizontal", 1),
    Sketcher.Constraint("Vertical", 2),
    Sketcher.Constraint("Horizontal", 3),
    Sketcher.Constraint("DistanceX", 1, 1, 1, 2, 975.0),
    Sketcher.Constraint("DistanceY", 0, 1, 0, 2, 2950.0),
    Sketcher.Constraint("DistanceX", 0, 2, -1, 1, 4450.0),
    Sketcher.Constraint("DistanceY", -1, 1, 0, 2, 1475.0),
])
pad9 = doc.addObject("PartDesign::Pad", "Pad008")
body9.addObject(pad9)
pad9.Profile = sketch9
pad9.Length = 10
pad9.Reversed = True
body10 = doc.addObject("PartDesign::Body", "Body009")

# Sketch on XZ plane
sketch10 = doc.addObject("Sketcher::SketchObject", "Sketch009")
body10.addObject(sketch10)
sketch10.AttachmentSupport = (doc.getObject("XZ_Plane009"), [""])
sketch10.MapMode = "FlatFace"
sketch10.addGeometry([
    Part.LineSegment(Vector(-5075, -1275, 0), Vector(-5075, 1275, 0)),
    Part.LineSegment(Vector(-5075, 1275, 0), Vector(-4500, 1275, 0)),
    Part.LineSegment(Vector(-4500, 1275, 0), Vector(-4500, -1275, 0)),
    Part.LineSegment(Vector(-4500, -1275, 0), Vector(-5075, -1275, 0)),
], False)
sketch10.addConstraint([
    Sketcher.Constraint("Coincident", 0, 2, 1, 1),
    Sketcher.Constraint("Coincident", 1, 2, 2, 1),
    Sketcher.Constraint("Coincident", 2, 2, 3, 1),
    Sketcher.Constraint("Coincident", 3, 2, 0, 1),
    Sketcher.Constraint("Vertical", 0),
    Sketcher.Constraint("Horizontal", 1),
    Sketcher.Constraint("Vertical", 2),
    Sketcher.Constraint("Horizontal", 3),
    Sketcher.Constraint("DistanceX", 1, 1, 1, 2, 575.0),
    Sketcher.Constraint("DistanceY", 0, 1, 0, 2, 2550.0),
    Sketcher.Constraint("DistanceX", 0, 2, -1, 1, 5075.0),
    Sketcher.Constraint("DistanceY", -1, 1, 0, 2, 1275.0),
])
pad10 = doc.addObject("PartDesign::Pad", "Pad009")
body10.addObject(pad10)
pad10.Profile = sketch10
pad10.Length = 10
pad10.Reversed = True
body11 = doc.addObject("PartDesign::Body", "Body010")

# Sketch on XZ plane
sketch11 = doc.addObject("Sketcher::SketchObject", "Sketch010")
body11.addObject(sketch11)
sketch11.AttachmentSupport = (doc.getObject("XZ_Plane010"), [""])
sketch11.MapMode = "FlatFace"
sketch11.addGeometry([
    Part.LineSegment(Vector(-5500, -4000, 0), Vector(-5500, 4000, 0)),  # 0
    Part.LineSegment(Vector(-5500, 4000, 0), Vector(5500, 4000, 0)),  # 1
    Part.LineSegment(Vector(5500, 4000, 0), Vector(5500, -4000, 0)),  # 2
    Part.LineSegment(Vector(5500, -4000, 0), Vector(-5500, -4000, 0)),  # 3
    Part.LineSegment(Vector(5125, -1325, 0), Vector(5125, 1325, 0)),  # 4
    Part.LineSegment(Vector(5125, 1325, 0), Vector(4500, 1325, 0)),  # 5
    Part.LineSegment(Vector(4500, 1325, 0), Vector(4500, 3000, 0)),  # 6
    Part.LineSegment(Vector(4500, 3000, 0), Vector(-4500, 3000, 0)),  # 7
    Part.LineSegment(Vector(-4500, 3000, 0), Vector(-4500, 1325, 0)),  # 8
    Part.LineSegment(Vector(-4500, 1325, 0), Vector(-5125, 1325, 0)),  # 9
    Part.LineSegment(Vector(-5125, 1325, 0), Vector(-5125, -1325, 0)),  # 10
    Part.LineSegment(Vector(-5125, -1325, 0), Vector(-4500, -1325, 0)),  # 11
    Part.LineSegment(Vector(-4500, -1325, 0), Vector(-4500, -3000, 0)),  # 12
    Part.LineSegment(Vector(-4500, -3000, 0), Vector(4500, -3000, 0)),  # 13
    Part.LineSegment(Vector(4500, -3000, 0), Vector(4500, -1325, 0)),  # 14
    Part.LineSegment(Vector(4500, -1325, 0), Vector(5125, -1325, 0)),  # 15
], False)
sketch11.addConstraint([
    Sketcher.Constraint("Coincident", 0, 2, 1, 1),
    Sketcher.Constraint("Coincident", 1, 2, 2, 1),
    Sketcher.Constraint("Coincident", 2, 2, 3, 1),
    Sketcher.Constraint("Coincident", 3, 2, 0, 1),
    Sketcher.Constraint("Coincident", 4, 2, 5, 1),
    Sketcher.Constraint("Coincident", 5, 2, 6, 1),
    Sketcher.Constraint("Coincident", 6, 2, 7, 1),
    Sketcher.Constraint("Coincident", 7, 2, 8, 1),
    Sketcher.Constraint("Coincident", 8, 2, 9, 1),
    Sketcher.Constraint("Coincident", 9, 2, 10, 1),
    Sketcher.Constraint("Coincident", 10, 2, 11, 1),
    Sketcher.Constraint("Coincident", 11, 2, 12, 1),
    Sketcher.Constraint("Coincident", 12, 2, 13, 1),
    Sketcher.Constraint("Coincident", 13, 2, 14, 1),
    Sketcher.Constraint("Coincident", 14, 2, 15, 1),
    Sketcher.Constraint("Coincident", 15, 2, 4, 1),
    Sketcher.Constraint("Vertical", 0),
    Sketcher.Constraint("Horizontal", 1),
    Sketcher.Constraint("Vertical", 2),
    Sketcher.Constraint("Horizontal", 3),
    Sketcher.Constraint("Vertical", 4),
    Sketcher.Constraint("Horizontal", 5),
    Sketcher.Constraint("Vertical", 6),
    Sketcher.Constraint("Horizontal", 7),
    Sketcher.Constraint("Vertical", 8),
    Sketcher.Constraint("Horizontal", 9),
    Sketcher.Constraint("Vertical", 10),
    Sketcher.Constraint("Horizontal", 11),
    Sketcher.Constraint("Vertical", 12),
    Sketcher.Constraint("Horizontal", 13),
    Sketcher.Constraint("Vertical", 14),
    Sketcher.Constraint("Horizontal", 15),
    Sketcher.Constraint("Symmetric", 0, 2, 2, 2, -1, 1),
    Sketcher.Constraint("Symmetric", 4, 2, 10, 2, -1, 1),
    Sketcher.Constraint("Symmetric", 6, 2, 12, 2, -1, 1),
    Sketcher.Constraint("Symmetric", 8, 2, 14, 2, -1, 1),
    Sketcher.Constraint("Symmetric", 5, 2, 8, 2, -2),
    Sketcher.Constraint("DistanceX", 1, 1, 1, 2, 11000.0),
    Sketcher.Constraint("DistanceX", 5, 2, 5, 1, 625.0),
    Sketcher.Constraint("DistanceX", 7, 2, 7, 1, 9000.0),
    Sketcher.Constraint("DistanceY", 0, 1, 0, 2, 8000.0),
    Sketcher.Constraint("DistanceY", 4, 1, 4, 2, 2650.0),
    Sketcher.Constraint("DistanceY", 6, 1, 6, 2, 1675.0),
])
pad11 = doc.addObject("PartDesign::Pad", "Pad010")
body11.addObject(pad11)
pad11.Profile = sketch11
pad11.Length = 10
pad11.Reversed = True

doc.recompute()
